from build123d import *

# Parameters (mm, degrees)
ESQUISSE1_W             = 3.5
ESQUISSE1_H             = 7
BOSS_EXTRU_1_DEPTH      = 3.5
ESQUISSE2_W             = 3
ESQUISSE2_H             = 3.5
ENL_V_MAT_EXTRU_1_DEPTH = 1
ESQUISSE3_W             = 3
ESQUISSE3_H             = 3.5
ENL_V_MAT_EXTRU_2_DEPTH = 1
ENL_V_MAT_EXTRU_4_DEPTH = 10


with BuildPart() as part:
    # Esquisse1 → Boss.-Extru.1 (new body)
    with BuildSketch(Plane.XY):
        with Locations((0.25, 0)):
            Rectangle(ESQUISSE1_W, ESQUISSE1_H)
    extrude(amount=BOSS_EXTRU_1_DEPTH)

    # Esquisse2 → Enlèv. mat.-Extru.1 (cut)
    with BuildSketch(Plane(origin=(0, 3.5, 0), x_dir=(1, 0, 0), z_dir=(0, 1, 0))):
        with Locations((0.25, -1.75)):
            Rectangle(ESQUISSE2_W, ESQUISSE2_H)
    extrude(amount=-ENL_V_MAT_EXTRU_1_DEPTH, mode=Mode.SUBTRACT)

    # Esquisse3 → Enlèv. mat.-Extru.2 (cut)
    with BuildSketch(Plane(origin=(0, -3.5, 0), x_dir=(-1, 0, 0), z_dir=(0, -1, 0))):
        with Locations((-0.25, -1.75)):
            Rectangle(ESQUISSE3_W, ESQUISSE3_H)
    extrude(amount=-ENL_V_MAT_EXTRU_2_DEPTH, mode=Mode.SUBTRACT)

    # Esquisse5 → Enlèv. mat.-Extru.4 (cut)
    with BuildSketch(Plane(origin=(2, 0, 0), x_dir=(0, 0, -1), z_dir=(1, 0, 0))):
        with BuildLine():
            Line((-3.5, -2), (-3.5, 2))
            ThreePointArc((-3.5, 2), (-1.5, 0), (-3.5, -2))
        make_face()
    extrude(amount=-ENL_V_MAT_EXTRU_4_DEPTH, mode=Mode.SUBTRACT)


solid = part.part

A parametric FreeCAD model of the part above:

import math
import FreeCAD as App
import Part
import Sketcher
from FreeCAD import Vector
Q = App.Units.Quantity


def add_polygon(sketch, points):
    """Adds a closed chain of lines whose ends are joined by coincident constraints."""
    first, n = sketch.GeometryCount, len(points)
    for a, b in zip(points, points[1:] + points[:1]):
        sketch.addGeometry(Part.LineSegment(App.Vector(*a, 0), App.Vector(*b, 0)), False)
    for i in range(n):
        sketch.addConstraint(Sketcher.Constraint("Coincident", first + i, 2, first + (i + 1) % n, 1))

doc = App.newDocument("Part")
body = doc.addObject("PartDesign::Body", "Body")

# Sketch on XY plane
sketch1 = body.newObject("Sketcher::SketchObject", "Sketch")
sketch1.AttachmentSupport = (doc.getObject("XY_Plane"), [""])
sketch1.MapMode = "FlatFace"
add_polygon(sketch1, [(-1.5, 3.5), (-1.5, -3.5), (2, -3.5), (2, 3.5)])  # lines 0-3
sketch1.addConstraint([
    Sketcher.Constraint("Vertical", 0),
    Sketcher.Constraint("Horizontal", 1),
    Sketcher.Constraint("Vertical", 2),
    Sketcher.Constraint("Horizontal", 3),
    Sketcher.Constraint("DistanceY", 0, 2, 0, 1, Q("7 mm")),
    Sketcher.Constraint("DistanceX", 1, 1, 1, 2, Q("3.5 mm")),
    Sketcher.Constraint("DistanceX", -1, 1, 1, 2, Q("2 mm")),
    Sketcher.Constraint("DistanceY", 0, 2, -1, 1, Q("3.5 mm")),
])
pad1 = body.newObject("PartDesign::Pad", "Pad")
pad1.Profile = sketch1
pad1.Length = 3.5

# Sketch on XZ plane
sketch2 = body.newObject("Sketcher::SketchObject", "Sketch001")
sketch2.AttachmentSupport = (doc.getObject("XZ_Plane"), [""])
sketch2.MapMode = "FlatFace"
sketch2.AttachmentOffset = App.Placement(Vector(0, 0, -3.5), App.Rotation())
add_polygon(sketch2, [(-1.25, 0), (-1.25, 3.5), (1.75, 3.5), (1.75, 0)])  # lines 0-3
sketch2.addConstraint([
    Sketcher.Constraint("Vertical", 0),
    Sketcher.Constraint("Horizontal", 1),
    Sketcher.Constraint("Vertical", 2),
    Sketcher.Constraint("Horizontal", 3),
    Sketcher.Constraint("PointOnObject", 2, 2, -1),
    Sketcher.Constraint("DistanceX", 1, 1, 1, 2, Q("3 mm")),
    Sketcher.Constraint("DistanceY", 0, 1, 0, 2, Q("3.5 mm")),
    Sketcher.Constraint("DistanceX", 0, 2, -1, 1, Q("1.25 mm")),
])
pocket1 = body.newObject("PartDesign::Pocket", "Pocket")
pocket1.Profile = sketch2
pocket1.Length = 1
pocket1.Reversed = True

# Sketch on XZ plane
sketch3 = body.newObject("Sketcher::SketchObject", "Sketch002")
sketch3.AttachmentSupport = (doc.getObject("XZ_Plane"), [""])
sketch3.MapMode = "FlatFace"
sketch3.AttachmentOffset = App.Placement(Vector(0, 0, 3.5), App.Rotation())
add_polygon(sketch3, [(1.75, 0), (1.75, 3.5), (-1.25, 3.5), (-1.25, 0)])  # lines 0-3
sketch3.addConstraint([
    Sketcher.Constraint("Vertical", 0),
    Sketcher.Constraint("Horizontal", 1),
    Sketcher.Constraint("Vertical", 2),
    Sketcher.Constraint("Horizontal", 3),
    Sketcher.Constraint("PointOnObject", 2, 2, -1),
    Sketcher.Constraint("DistanceX", 1, 2, 1, 1, Q("3 mm")),
    Sketcher.Constraint("DistanceY", 0, 1, 0, 2, Q("3.5 mm")),
    Sketcher.Constraint("DistanceX", -1, 1, 0, 2, Q("1.75 mm")),
])
pocket2 = body.newObject("PartDesign::Pocket", "Pocket001")
pocket2.Profile = sketch3
pocket2.Length = 1

# Sketch on YZ plane
sketch4 = body.newObject("Sketcher::SketchObject", "Sketch003")
sketch4.AttachmentSupport = (doc.getObject("YZ_Plane"), [""])
sketch4.MapMode = "FlatFace"
sketch4.AttachmentOffset = App.Placement(Vector(0, 0, 2), App.Rotation())
sketch4.addGeometry([
    Part.LineSegment(Vector(2, 3.5, 0), Vector(-2, 3.5, 0)),
    Part.ArcOfCircle(Part.Circle(Vector(0, 3.5, 0), Vector(0, 0, 1), 2), math.radians(180), math.radians(360)),
], False)
sketch4.addConstraint([
    Sketcher.Constraint("Coincident", 0, 1, 1, 2),
    Sketcher.Constraint("Coincident", 1, 1, 0, 2),
    Sketcher.Constraint("Horizontal", 0),
    Sketcher.Constraint("PointOnObject", 1, 3, -2),
    Sketcher.Constraint("Horizontal", 1, 3, 0, 1),
    Sketcher.Constraint("Radius", 1, Q("2 mm")),
    Sketcher.Constraint("DistanceY", -1, 1, 1, 3, Q("3.5 mm")),
])
pocket3 = body.newObject("PartDesign::Pocket", "Pocket002")
pocket3.Profile = sketch4
pocket3.Length = 10

doc.recompute()
